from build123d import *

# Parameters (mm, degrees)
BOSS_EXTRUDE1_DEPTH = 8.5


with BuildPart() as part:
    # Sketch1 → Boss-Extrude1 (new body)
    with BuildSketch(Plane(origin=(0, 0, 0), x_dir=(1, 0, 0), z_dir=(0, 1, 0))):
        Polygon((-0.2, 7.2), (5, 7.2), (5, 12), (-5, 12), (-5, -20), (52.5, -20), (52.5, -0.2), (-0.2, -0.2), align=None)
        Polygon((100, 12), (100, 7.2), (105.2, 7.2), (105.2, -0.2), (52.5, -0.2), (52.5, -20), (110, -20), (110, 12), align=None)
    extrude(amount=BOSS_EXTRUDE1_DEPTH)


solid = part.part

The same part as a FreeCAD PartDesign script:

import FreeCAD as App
import Part
import Sketcher

V = App.Vector
Q = App.Units.Quantity


def add_polygon(sketch, points):
    """Adds a closed chain of lines whose ends are joined by coincident constraints."""
    first, n = sketch.GeometryCount, len(points)
    for a, b in zip(points, points[1:] + points[:1]):
        sketch.addGeometry(Part.LineSegment(App.Vector(*a, 0), App.Vector(*b, 0)), False)
    for i in range(n):
        sketch.addConstraint(Sketcher.Constraint("Coincident", first + i, 2, first + (i + 1) % n, 1))

doc = App.newDocument("Part")
params = doc.addObject("Spreadsheet::Sheet", "Params")
for row, (alias, value) in enumerate([
    ("sketch1_width", "10 mm"),
    ("sketch1_width2", "115 mm"),
    ("sketch1_height", "32 mm"),
    ("sketch1_width3", "5.2 mm"),
    ("sketch1_height2", "4.8 mm"),
    ("pad1_length", "8.5 mm"),
], start=1):
    params.set(f"A{row}", alias)
    params.set(f"B{row}", "=" + value)
    params.setAlias(f"B{row}", alias)

body = doc.addObject("PartDesign::Body", "Body")

# Sketch on XZ plane
sketch1 = body.newObject("Sketcher::SketchObject", "Sketch")
sketch1.AttachmentSupport = (doc.getObject("XZ_Plane"), [""])
sketch1.MapMode = "FlatFace"
add_polygon(sketch1, [(-0.2, -7.2), (5, -7.2), (5, -12), (-5, -12), (-5, 20), (110, 20), (110, -12), (100, -12), (100, -7.2), (105.2, -7.2), (105.2, 0.2), (-0.2, 0.2)])  # lines 0-11
sketch1.addConstraint([
    Sketcher.Constraint("Horizontal", 0),
    Sketcher.Constraint("Vertical", 1),
    Sketcher.Constraint("Horizontal", 2),
    Sketcher.Constraint("Vertical", 3),
    Sketcher.Constraint("Horizontal", 4),
    Sketcher.Constraint("Vertical", 5),
    Sketcher.Constraint("Horizontal", 6),
    Sketcher.Constraint("Vertical", 7),
    Sketcher.Constraint("Horizontal", 8),
    Sketcher.Constraint("Vertical", 9),
    Sketcher.Constraint("Horizontal", 10),
    Sketcher.Constraint("Vertical", 11),
    Sketcher.Constraint("Horizontal", 2, 2, 5, 2),
    Sketcher.Constraint("Horizontal", 0, 2, 7, 2),
    Sketcher.Constraint("Equal", 2, 6),
    Sketcher.Constraint("Equal", 0, 8),
    Sketcher.Constraint("DistanceX", 2, 2, 2, 1, Q("10 mm")),
    Sketcher.Constraint("DistanceX", 4, 1, 4, 2, Q("115 mm")),
    Sketcher.Constraint("DistanceY", 3, 1, 3, 2, Q("32 mm")),
    Sketcher.Constraint("DistanceX", 0, 1, 0, 2, Q("5.2 mm")),
    Sketcher.Constraint("DistanceY", 1, 2, 1, 1, Q("4.8 mm")),
    Sketcher.Constraint("DistanceY", 9, 1, 9, 2, Q("7.4 mm")),
    Sketcher.Constraint("DistanceX", -1, 1, 0, 2, Q("5 mm")),
    Sketcher.Constraint("DistanceY", 1, 2, -1, 1, Q("12 mm")),
])
sketch1.setExpression("Constraints[28]", "Params.sketch1_width")
sketch1.setExpression("Constraints[29]", "Params.sketch1_width2")
sketch1.setExpression("Constraints[30]", "Params.sketch1_height")
sketch1.setExpression("Constraints[31]", "Params.sketch1_width3")
sketch1.setExpression("Constraints[32]", "Params.sketch1_height2")
pad1 = body.newObject("PartDesign::Pad", "Pad")
pad1.Profile = sketch1
pad1.setExpression("Length", "Params.pad1_length")
pad1.Reversed = True

doc.recompute()
